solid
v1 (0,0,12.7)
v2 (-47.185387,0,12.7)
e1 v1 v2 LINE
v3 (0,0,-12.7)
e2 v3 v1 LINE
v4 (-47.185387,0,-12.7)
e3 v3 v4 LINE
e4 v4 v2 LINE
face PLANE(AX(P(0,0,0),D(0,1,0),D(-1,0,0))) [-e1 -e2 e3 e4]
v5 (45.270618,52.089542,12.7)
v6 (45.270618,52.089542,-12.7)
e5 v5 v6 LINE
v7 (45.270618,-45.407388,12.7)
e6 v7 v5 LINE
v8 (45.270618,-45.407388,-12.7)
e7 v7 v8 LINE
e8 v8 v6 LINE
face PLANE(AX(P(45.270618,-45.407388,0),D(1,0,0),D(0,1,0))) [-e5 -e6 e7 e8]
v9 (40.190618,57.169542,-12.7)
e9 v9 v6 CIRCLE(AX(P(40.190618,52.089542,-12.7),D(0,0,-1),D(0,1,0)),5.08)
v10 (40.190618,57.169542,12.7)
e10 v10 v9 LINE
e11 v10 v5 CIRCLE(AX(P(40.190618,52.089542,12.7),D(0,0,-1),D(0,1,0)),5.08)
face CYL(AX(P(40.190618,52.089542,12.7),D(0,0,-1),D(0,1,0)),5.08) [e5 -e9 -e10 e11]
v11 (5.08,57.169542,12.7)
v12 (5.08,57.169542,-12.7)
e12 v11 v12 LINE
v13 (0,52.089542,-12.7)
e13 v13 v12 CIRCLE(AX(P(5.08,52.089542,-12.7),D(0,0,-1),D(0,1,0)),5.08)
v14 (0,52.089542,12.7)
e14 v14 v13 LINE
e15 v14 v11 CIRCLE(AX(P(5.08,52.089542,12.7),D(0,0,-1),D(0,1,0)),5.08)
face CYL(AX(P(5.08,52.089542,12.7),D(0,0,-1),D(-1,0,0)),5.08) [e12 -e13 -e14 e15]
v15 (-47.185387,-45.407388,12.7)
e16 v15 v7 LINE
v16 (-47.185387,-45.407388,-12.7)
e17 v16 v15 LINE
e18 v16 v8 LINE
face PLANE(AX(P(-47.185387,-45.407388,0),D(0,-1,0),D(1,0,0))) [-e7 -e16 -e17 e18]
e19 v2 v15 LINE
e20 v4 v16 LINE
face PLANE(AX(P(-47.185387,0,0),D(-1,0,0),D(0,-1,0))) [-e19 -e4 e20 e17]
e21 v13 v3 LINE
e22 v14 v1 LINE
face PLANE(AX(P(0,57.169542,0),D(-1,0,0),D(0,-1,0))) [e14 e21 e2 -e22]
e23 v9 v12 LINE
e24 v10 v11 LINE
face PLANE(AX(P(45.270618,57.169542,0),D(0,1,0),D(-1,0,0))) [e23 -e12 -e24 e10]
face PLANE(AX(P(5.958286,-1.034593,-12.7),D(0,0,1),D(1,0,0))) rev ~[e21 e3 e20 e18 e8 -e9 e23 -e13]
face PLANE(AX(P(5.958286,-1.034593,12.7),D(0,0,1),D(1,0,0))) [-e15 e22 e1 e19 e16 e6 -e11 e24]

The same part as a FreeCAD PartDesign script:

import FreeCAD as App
import Part
import Sketcher

V = App.Vector
Q = App.Units.Quantity


def edges_at(feature, points):
    """Names of the edges that pass closest to the given points."""
    edges = feature.Shape.Edges
    near = lambda p: min(range(len(edges)), key=lambda i: edges[i].distToShape(Part.Vertex(*p))[0])
    return sorted({f"Edge{near(p) + 1}" for p in points})

doc = App.newDocument("Part")
body = doc.addObject("PartDesign::Body", "Body")

# Sketch on XY plane
sketch1 = body.newObject("Sketcher::SketchObject", "Sketch")
sketch1.AttachmentSupport = (doc.getObject("XY_Plane"), [""])
sketch1.MapMode = "FlatFace"
sketch1.addGeometry(Part.LineSegment(V(0, 57.169542, 0), V(0, 0, 0)), False)
sketch1.addGeometry(Part.LineSegment(V(0, 0, 0), V(-47.185387, 0, 0)), False)
sketch1.addGeometry(Part.LineSegment(V(-47.185387, 0, 0), V(-47.185387, -45.407388, 0)), False)
sketch1.addGeometry(Part.LineSegment(V(-47.185387, -45.407388, 0), V(45.270618, -45.407388, 0)), False)
sketch1.addGeometry(Part.LineSegment(V(45.270618, -45.407388, 0), V(45.270618, 57.169542, 0)), False)
sketch1.addGeometry(Part.LineSegment(V(45.270618, 57.169542, 0), V(0, 57.169542, 0)), False)
sketch1.addConstraint(Sketcher.Constraint("Coincident", 0, 2, 1, 1))
sketch1.addConstraint(Sketcher.Constraint("Coincident", 1, 2, 2, 1))
sketch1.addConstraint(Sketcher.Constraint("Coincident", 2, 2, 3, 1))
sketch1.addConstraint(Sketcher.Constraint("Coincident", 3, 2, 4, 1))
sketch1.addConstraint(Sketcher.Constraint("Coincident", 4, 2, 5, 1))
sketch1.addConstraint(Sketcher.Constraint("Coincident", 5, 2, 0, 1))
sketch1.addConstraint(Sketcher.Constraint("Vertical", 0))
sketch1.addConstraint(Sketcher.Constraint("Horizontal", 1))
sketch1.addConstraint(Sketcher.Constraint("Vertical", 2))
sketch1.addConstraint(Sketcher.Constraint("Horizontal", 3))
sketch1.addConstraint(Sketcher.Constraint("Vertical", 4))
sketch1.addConstraint(Sketcher.Constraint("Horizontal", 5))
sketch1.addConstraint(Sketcher.Constraint("Coincident", 0, 2, -1, 1))
sketch1.addConstraint(Sketcher.Constraint("DistanceX", 3, 1, 3, 2, Q("3.6400002 in")))
sketch1.addConstraint(Sketcher.Constraint("DistanceY", 4, 1, 4, 2, Q("102.57693 mm")))
sketch1.addConstraint(Sketcher.Constraint("DistanceX", 1, 2, 1, 1, Q("47.185387 mm")))
sketch1.addConstraint(Sketcher.Constraint("DistanceY", 0, 2, 0, 1, Q("57.169542 mm")))
pad1 = body.newObject("PartDesign::Pad", "Pad")
pad1.Profile = sketch1
pad1.Length = Q("1 in")
pad1.Midplane = True
doc.recompute()

fillet = body.newObject("PartDesign::Fillet", "Fillet")
fillet.Base = (pad1, edges_at(pad1, [(0, 57.17, 0), (45.271, 57.17, 0)]))
fillet.Radius = Q("0.2 in")

doc.recompute()
